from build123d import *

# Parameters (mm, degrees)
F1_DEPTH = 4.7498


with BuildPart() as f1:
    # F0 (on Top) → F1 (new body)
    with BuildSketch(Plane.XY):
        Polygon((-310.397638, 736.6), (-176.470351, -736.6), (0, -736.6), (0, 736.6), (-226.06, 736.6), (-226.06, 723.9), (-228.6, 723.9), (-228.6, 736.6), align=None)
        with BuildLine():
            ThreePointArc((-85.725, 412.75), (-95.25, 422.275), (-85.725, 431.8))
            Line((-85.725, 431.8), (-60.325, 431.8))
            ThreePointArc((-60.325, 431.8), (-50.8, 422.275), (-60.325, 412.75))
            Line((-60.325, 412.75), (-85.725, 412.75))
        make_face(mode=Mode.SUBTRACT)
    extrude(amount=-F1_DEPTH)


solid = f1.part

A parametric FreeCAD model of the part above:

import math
import FreeCAD as App
import Part
import Sketcher
Q = App.Units.Quantity

doc = App.newDocument("Part")
body = doc.addObject("PartDesign::Body", "Body")

sketch1 = body.newObject("Sketcher::SketchObject", "Sketch")
sketch1.AttachmentSupport = (doc.getObject("XY_Plane"), [""])
sketch1.MapMode = "FlatFace"
sketch1.addGeometry([
    Part.LineSegment(App.Vector(-310.397638, 736.6, 0), App.Vector(-176.470351, -736.6, 0)),
    Part.LineSegment(App.Vector(-176.470351, -736.6, 0), App.Vector(0, -736.6, 0)),
    Part.LineSegment(App.Vector(0, -736.6, 0), App.Vector(0, 736.6, 0)),
    Part.LineSegment(App.Vector(0, 736.6, 0), App.Vector(-226.06, 736.6, 0)),
    Part.LineSegment(App.Vector(-226.06, 736.6, 0), App.Vector(-226.06, 723.9, 0)),
    Part.LineSegment(App.Vector(-226.06, 723.9, 0), App.Vector(-228.6, 723.9, 0)),
    Part.LineSegment(App.Vector(-228.6, 723.9, 0), App.Vector(-228.6, 736.6, 0)),
    Part.LineSegment(App.Vector(-228.6, 736.6, 0), App.Vector(-310.397638, 736.6, 0)),
    Part.LineSegment(App.Vector(-60.325, 412.75, 0), App.Vector(-85.725, 412.75, 0)),
    Part.ArcOfCircle(Part.Circle(App.Vector(-85.725, 422.275, 0), App.Vector(0, 0, 1), 9.525), math.radians(90), math.radians(270)),
    Part.LineSegment(App.Vector(-85.725, 431.8, 0), App.Vector(-60.325, 431.8, 0)),
    Part.ArcOfCircle(Part.Circle(App.Vector(-60.325, 422.275, 0), App.Vector(0, 0, 1), 9.525), math.radians(-90), math.radians(90)),
], False)
sketch1.addConstraint([
    Sketcher.Constraint("Coincident", 0, 2, 1, 1),
    Sketcher.Constraint("Coincident", 1, 2, 2, 1),
    Sketcher.Constraint("Coincident", 2, 2, 3, 1),
    Sketcher.Constraint("Coincident", 3, 2, 4, 1),
    Sketcher.Constraint("Coincident", 4, 2, 5, 1),
    Sketcher.Constraint("Coincident", 5, 2, 6, 1),
    Sketcher.Constraint("Coincident", 6, 2, 7, 1),
    Sketcher.Constraint("Coincident", 7, 2, 0, 1),
    Sketcher.Constraint("Tangent", 8, 2, 9, 2),
    Sketcher.Constraint("Tangent", 9, 1, 10, 1),
    Sketcher.Constraint("Tangent", 10, 2, 11, 2),
    Sketcher.Constraint("Tangent", 11, 1, 8, 1),
    Sketcher.Constraint("Horizontal", 1),
    Sketcher.Constraint("Vertical", 2),
    Sketcher.Constraint("Horizontal", 3),
    Sketcher.Constraint("Vertical", 4),
    Sketcher.Constraint("Horizontal", 5),
    Sketcher.Constraint("Vertical", 6),
    Sketcher.Constraint("Horizontal", 7),
    Sketcher.Constraint("Horizontal", 8),
    Sketcher.Constraint("Horizontal", 10),
    Sketcher.Constraint("Symmetric", 1, 2, 2, 2, -1, 1),
    Sketcher.Constraint("Horizontal", 3, 2, 6, 2),
    Sketcher.Constraint("DistanceX", 8, 2, 8, 1, Q("1 in")),
    Sketcher.Constraint("DistanceY", 2, 1, 2, 2, Q("58 in")),
    Sketcher.Constraint("DistanceX", 3, 2, 3, 1, Q("8.9 in")),
    Sketcher.Constraint("DistanceX", 5, 2, 5, 1, Q("0.1 in")),
    Sketcher.Constraint("DistanceY", 4, 2, 4, 1, Q("0.5 in")),
    Sketcher.Constraint("DistanceY", -1, 1, 9, 1, Q("17 in")),
    Sketcher.Constraint("Radius", 9, Q("0.375 in")),
    Sketcher.Constraint("DistanceX", 9, 3, -1, 1, Q("3.375 in")),
    Sketcher.Constraint("DistanceX", 1, 1, 1, 2, 176.470351),
    Sketcher.Constraint("Distance", 0, 1479.275079),
])
pad1 = body.newObject("PartDesign::Pad", "Pad")
pad1.Profile = sketch1
pad1.Length = Q("0.187 in")
pad1.Reversed = True

doc.recompute()
